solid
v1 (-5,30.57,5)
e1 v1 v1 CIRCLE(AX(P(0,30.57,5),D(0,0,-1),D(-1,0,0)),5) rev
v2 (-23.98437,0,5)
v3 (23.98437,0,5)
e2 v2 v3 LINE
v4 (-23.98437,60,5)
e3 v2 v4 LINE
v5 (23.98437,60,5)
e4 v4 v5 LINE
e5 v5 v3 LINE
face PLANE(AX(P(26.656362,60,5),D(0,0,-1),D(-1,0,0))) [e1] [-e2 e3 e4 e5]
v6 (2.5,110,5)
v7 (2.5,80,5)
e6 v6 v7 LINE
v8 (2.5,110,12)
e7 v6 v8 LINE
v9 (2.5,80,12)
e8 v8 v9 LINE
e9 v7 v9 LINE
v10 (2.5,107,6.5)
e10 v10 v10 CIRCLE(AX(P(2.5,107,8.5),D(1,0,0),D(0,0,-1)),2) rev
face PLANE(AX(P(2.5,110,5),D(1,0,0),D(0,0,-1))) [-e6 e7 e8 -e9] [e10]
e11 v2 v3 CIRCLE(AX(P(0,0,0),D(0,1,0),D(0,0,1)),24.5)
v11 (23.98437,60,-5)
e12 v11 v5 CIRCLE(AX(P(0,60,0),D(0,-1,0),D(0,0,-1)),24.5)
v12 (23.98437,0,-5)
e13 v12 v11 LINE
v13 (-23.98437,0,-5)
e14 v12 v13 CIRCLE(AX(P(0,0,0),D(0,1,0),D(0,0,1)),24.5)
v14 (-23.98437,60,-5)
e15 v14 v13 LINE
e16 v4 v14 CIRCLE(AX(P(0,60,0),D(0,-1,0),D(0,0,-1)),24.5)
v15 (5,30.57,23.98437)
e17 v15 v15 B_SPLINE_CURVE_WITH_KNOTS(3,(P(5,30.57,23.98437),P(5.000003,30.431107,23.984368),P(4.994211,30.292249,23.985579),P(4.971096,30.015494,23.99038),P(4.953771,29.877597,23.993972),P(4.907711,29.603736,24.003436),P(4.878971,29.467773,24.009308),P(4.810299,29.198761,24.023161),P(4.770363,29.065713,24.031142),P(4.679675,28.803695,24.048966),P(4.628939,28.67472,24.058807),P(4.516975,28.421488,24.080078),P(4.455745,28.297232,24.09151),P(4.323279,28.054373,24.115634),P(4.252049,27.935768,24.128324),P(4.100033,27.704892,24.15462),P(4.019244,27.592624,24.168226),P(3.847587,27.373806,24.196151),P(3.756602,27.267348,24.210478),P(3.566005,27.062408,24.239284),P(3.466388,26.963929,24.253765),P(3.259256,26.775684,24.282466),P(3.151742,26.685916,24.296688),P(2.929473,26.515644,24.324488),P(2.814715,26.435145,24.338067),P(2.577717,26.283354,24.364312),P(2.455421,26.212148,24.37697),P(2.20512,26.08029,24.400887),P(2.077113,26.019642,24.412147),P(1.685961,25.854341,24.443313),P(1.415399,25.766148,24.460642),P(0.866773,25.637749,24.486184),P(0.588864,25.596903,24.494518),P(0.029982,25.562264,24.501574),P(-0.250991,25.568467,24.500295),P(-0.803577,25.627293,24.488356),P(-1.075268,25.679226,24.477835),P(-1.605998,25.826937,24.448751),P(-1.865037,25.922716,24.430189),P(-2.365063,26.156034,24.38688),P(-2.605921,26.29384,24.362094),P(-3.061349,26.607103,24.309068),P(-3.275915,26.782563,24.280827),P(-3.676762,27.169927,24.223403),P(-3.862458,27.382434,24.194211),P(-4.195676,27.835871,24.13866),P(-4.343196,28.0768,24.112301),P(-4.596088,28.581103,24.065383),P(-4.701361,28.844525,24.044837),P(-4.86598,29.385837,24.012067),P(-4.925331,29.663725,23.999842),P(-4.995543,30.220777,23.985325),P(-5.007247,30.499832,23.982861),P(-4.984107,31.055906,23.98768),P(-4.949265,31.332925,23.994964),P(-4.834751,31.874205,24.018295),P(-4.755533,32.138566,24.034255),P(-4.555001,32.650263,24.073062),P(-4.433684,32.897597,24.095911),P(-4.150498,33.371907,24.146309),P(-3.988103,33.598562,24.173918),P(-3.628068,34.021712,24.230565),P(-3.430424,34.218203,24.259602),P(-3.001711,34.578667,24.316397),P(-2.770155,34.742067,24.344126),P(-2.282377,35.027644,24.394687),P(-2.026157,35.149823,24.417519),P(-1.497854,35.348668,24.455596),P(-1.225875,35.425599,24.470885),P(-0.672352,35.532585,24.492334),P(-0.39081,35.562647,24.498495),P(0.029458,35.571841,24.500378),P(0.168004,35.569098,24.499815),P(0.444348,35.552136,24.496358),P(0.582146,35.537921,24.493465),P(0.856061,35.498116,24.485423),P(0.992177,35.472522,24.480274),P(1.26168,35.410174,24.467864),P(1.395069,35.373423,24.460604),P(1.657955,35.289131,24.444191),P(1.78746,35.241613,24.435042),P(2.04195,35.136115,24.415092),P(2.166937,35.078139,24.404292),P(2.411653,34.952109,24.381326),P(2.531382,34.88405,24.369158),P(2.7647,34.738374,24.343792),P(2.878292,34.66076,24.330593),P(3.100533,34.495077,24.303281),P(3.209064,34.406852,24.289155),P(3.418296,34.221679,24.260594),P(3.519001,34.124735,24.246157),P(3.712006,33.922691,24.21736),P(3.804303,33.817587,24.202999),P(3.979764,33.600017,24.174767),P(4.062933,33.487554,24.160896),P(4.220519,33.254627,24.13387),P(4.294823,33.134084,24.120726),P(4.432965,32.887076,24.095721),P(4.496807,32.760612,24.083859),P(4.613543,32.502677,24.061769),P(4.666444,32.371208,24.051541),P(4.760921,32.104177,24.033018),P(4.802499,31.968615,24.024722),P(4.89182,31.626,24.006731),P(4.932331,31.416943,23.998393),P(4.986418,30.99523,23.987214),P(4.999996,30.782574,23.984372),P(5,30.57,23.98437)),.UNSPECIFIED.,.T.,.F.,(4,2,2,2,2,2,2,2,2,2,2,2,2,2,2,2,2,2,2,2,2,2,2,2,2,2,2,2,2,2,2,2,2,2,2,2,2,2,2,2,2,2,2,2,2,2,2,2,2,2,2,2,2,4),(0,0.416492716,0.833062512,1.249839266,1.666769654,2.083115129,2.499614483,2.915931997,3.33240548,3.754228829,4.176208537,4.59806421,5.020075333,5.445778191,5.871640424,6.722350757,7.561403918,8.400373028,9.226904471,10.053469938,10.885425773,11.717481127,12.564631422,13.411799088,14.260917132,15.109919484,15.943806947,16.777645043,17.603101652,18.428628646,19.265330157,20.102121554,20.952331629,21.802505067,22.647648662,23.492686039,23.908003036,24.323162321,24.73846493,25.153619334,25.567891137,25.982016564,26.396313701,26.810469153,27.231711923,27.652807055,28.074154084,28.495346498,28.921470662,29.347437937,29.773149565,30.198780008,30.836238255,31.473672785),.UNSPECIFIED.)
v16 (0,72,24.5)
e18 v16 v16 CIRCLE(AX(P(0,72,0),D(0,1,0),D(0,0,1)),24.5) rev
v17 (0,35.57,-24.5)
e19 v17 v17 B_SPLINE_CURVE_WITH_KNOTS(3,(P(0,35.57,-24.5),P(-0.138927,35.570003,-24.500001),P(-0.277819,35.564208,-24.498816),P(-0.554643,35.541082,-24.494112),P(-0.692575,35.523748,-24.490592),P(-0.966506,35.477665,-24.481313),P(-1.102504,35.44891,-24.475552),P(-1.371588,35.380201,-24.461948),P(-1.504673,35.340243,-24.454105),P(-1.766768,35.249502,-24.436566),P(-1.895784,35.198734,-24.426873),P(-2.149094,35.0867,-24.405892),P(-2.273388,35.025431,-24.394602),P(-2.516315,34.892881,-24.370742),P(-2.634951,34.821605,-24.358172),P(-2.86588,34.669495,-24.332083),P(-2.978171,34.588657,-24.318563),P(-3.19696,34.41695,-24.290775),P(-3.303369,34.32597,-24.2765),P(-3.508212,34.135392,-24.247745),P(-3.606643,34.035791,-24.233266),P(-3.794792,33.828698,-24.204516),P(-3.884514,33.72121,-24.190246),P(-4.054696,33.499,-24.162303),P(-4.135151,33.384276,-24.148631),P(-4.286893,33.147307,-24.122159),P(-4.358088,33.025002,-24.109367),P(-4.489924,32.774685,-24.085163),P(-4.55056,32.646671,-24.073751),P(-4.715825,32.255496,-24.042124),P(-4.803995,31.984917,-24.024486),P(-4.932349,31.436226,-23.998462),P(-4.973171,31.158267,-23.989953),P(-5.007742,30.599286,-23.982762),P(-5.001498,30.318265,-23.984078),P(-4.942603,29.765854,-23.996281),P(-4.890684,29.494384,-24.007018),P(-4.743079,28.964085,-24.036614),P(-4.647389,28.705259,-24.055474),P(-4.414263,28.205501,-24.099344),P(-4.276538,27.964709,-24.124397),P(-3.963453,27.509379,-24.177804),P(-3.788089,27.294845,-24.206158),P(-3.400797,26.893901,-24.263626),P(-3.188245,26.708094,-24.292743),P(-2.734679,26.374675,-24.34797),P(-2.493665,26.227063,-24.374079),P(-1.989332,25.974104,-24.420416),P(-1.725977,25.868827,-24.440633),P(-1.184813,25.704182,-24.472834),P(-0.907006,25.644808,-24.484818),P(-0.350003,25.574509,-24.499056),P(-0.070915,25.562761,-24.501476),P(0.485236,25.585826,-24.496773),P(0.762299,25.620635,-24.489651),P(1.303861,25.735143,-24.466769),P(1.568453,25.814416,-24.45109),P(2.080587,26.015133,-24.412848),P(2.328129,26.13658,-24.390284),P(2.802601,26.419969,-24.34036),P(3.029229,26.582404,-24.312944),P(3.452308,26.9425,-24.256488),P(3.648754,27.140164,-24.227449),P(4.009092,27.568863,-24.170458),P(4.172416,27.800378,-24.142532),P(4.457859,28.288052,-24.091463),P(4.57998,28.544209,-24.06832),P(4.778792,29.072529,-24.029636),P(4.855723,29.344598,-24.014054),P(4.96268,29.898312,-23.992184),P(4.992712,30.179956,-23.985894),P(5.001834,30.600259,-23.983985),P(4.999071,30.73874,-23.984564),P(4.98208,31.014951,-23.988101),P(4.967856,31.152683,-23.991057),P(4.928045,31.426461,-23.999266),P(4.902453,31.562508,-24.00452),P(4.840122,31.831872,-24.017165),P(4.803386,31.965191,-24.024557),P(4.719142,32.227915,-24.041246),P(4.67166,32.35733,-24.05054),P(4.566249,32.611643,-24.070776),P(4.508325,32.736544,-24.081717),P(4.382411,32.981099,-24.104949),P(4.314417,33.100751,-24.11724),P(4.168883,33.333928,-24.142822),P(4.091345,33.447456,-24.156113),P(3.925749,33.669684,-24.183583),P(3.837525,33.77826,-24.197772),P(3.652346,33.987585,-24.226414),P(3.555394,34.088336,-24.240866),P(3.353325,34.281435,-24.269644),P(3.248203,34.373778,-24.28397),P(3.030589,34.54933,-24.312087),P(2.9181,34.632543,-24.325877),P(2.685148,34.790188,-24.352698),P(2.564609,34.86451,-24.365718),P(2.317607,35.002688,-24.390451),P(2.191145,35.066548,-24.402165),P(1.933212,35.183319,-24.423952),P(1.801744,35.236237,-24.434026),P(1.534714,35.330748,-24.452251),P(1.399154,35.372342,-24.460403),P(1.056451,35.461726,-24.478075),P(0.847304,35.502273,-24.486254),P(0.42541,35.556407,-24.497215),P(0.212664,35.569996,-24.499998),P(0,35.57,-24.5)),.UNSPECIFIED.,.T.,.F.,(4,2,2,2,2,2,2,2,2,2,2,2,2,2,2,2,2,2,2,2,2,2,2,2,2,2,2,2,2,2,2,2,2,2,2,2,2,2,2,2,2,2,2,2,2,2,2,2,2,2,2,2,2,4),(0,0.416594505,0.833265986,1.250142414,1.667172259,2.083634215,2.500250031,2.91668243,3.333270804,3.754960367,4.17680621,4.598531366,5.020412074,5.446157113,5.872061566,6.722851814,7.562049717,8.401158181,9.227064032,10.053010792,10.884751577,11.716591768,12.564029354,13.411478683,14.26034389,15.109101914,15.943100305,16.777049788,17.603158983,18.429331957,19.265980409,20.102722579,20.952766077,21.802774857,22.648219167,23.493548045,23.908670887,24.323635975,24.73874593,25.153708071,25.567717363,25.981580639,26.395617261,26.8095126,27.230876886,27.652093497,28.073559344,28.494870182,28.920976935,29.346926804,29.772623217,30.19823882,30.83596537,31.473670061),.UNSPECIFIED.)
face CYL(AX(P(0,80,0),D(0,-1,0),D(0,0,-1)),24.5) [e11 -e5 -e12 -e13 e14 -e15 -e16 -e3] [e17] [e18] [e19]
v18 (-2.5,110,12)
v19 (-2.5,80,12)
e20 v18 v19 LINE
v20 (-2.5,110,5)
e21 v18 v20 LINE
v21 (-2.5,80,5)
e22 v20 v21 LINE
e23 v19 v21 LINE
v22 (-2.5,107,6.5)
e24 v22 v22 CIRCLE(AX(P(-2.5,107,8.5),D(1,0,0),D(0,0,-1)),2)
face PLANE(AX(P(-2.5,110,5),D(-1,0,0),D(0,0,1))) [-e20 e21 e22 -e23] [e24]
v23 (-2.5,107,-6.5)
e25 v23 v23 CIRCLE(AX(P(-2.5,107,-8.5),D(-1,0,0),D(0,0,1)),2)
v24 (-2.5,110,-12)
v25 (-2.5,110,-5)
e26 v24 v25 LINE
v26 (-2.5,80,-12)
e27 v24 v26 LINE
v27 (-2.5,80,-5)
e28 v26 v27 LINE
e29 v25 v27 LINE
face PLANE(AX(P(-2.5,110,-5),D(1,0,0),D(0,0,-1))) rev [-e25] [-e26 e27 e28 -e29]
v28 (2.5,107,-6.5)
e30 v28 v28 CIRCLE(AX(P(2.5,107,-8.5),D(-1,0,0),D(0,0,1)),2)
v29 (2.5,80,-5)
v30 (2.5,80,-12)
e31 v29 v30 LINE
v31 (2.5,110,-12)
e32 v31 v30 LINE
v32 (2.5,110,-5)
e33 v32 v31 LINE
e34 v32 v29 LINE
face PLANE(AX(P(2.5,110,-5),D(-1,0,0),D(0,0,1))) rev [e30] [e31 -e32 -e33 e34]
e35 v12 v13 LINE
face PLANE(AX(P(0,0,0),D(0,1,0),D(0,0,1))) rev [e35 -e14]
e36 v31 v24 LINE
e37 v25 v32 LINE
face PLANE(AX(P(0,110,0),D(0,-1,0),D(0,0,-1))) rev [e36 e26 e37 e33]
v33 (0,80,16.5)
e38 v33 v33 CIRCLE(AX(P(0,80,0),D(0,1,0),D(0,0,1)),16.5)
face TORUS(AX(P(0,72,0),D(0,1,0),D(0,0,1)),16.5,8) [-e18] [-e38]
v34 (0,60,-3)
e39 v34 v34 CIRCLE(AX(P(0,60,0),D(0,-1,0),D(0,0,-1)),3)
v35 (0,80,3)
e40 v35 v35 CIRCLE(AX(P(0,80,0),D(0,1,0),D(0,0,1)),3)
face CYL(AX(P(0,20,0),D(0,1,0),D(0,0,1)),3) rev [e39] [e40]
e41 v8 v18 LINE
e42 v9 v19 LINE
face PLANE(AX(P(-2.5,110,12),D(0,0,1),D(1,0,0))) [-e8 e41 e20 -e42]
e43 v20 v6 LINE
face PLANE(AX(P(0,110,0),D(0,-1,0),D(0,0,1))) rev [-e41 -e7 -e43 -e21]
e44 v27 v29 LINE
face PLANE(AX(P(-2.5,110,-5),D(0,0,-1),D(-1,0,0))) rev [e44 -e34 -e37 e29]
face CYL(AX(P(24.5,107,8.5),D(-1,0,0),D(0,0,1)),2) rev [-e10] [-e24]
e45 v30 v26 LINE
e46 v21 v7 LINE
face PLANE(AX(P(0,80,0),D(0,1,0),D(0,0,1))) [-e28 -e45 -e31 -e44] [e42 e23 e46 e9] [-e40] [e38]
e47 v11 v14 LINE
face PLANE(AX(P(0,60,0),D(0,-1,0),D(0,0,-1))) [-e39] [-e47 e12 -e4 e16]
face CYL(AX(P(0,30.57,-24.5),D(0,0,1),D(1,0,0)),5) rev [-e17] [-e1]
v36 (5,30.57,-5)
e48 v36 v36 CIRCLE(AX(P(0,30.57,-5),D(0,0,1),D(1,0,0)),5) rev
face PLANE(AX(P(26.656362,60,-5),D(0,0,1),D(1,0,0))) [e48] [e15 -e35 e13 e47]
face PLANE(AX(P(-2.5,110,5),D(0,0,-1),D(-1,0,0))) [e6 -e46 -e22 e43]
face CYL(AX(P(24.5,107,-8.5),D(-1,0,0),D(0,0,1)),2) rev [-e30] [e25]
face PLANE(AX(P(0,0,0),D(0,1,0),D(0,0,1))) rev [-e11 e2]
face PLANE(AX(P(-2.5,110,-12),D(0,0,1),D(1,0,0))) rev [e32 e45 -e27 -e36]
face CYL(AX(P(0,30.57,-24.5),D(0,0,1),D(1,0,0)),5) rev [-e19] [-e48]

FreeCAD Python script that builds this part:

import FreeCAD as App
import Part
import Sketcher


def edges_at(feature, points):
    """Names of the edges that pass closest to the given points."""
    edges = feature.Shape.Edges
    near = lambda p: min(range(len(edges)), key=lambda i: edges[i].distToShape(Part.Vertex(*p))[0])
    return sorted({f"Edge{near(p) + 1}" for p in points})

doc = App.newDocument("Part")
body = doc.addObject("PartDesign::Body", "Body")

sketch1 = body.newObject("Sketcher::SketchObject", "Sketch")
sketch1.AttachmentSupport = (doc.getObject("XZ_Plane"), [""])
sketch1.MapMode = "FlatFace"
sketch1.addGeometry(Part.Circle(App.Vector(0, 0, 0), App.Vector(0, 0, 1), 24), False)
sketch1.addConstraint(Sketcher.Constraint("Coincident", 0, 3, -1, 1))
sketch1.addConstraint(Sketcher.Constraint("Diameter", 0, 49.0))
pad1 = body.newObject("PartDesign::Pad", "Pad")
pad1.Profile = sketch1
pad1.Length = 80
pad1.Reversed = True
doc.recompute()

fillet = body.newObject("PartDesign::Fillet", "Fillet")
fillet.Base = (pad1, edges_at(pad1, [(0, 80, -24.5)]))
fillet.Radius = 8

sketch2 = body.newObject("Sketcher::SketchObject", "Sketch001")
sketch2.AttachmentSupport = (doc.getObject("XY_Plane"), [""])
sketch2.MapMode = "FlatFace"
sketch2.addGeometry(Part.Circle(App.Vector(0, 31, 0), App.Vector(0, 0, 1), 5), False)
sketch2.addConstraint(Sketcher.Constraint("PointOnObject", 0, 3, -2))
sketch2.addConstraint(Sketcher.Constraint("Diameter", 0, 10.0))
sketch2.addConstraint(Sketcher.Constraint("DistanceY", -1, 1, 0, 3, 30.57))
pocket1 = body.newObject("PartDesign::Pocket", "Pocket")
pocket1.Profile = sketch2
pocket1.Type = "ThroughAll"
pocket1.Midplane = True

sketch3 = body.newObject("Sketcher::SketchObject", "Sketch002")
sketch3.AttachmentSupport = (doc.getObject("XZ_Plane"), [""])
sketch3.MapMode = "FlatFace"
sketch3.addGeometry(Part.LineSegment(App.Vector(-29, -5, 0), App.Vector(-29, 5, 0)), False)
sketch3.addGeometry(Part.LineSegment(App.Vector(-29, 5, 0), App.Vector(27, 5, 0)), False)
sketch3.addGeometry(Part.LineSegment(App.Vector(27, 5, 0), App.Vector(27, -5, 0)), False)
sketch3.addGeometry(Part.LineSegment(App.Vector(27, -5, 0), App.Vector(-29, -5, 0)), False)
sketch3.addConstraint(Sketcher.Constraint("Coincident", 0, 2, 1, 1))
sketch3.addConstraint(Sketcher.Constraint("Coincident", 1, 2, 2, 1))
sketch3.addConstraint(Sketcher.Constraint("Coincident", 2, 2, 3, 1))
sketch3.addConstraint(Sketcher.Constraint("Coincident", 3, 2, 0, 1))
sketch3.addConstraint(Sketcher.Constraint("Vertical", 0))
sketch3.addConstraint(Sketcher.Constraint("Horizontal", 1))
sketch3.addConstraint(Sketcher.Constraint("Vertical", 2))
sketch3.addConstraint(Sketcher.Constraint("Horizontal", 3))
sketch3.addConstraint(Sketcher.Constraint("DistanceY", 0, 1, 0, 2, 10.0))
sketch3.addConstraint(Sketcher.Constraint("DistanceY", -1, 1, 0, 2, 5.0))
sketch3.addConstraint(Sketcher.Constraint("DistanceX", 1, 1, 1, 2, 56.031714))
sketch3.addConstraint(Sketcher.Constraint("DistanceX", -1, 1, 1, 2, 26.656362))
pocket2 = body.newObject("PartDesign::Pocket", "Pocket001")
pocket2.Profile = sketch3
pocket2.Length = 60

sketch4 = body.newObject("Sketcher::SketchObject", "Sketch003")
sketch4.AttachmentSupport = (doc.getObject("XZ_Plane"), [""])
sketch4.MapMode = "FlatFace"
sketch4.AttachmentOffset = App.Placement(App.Vector(0, 0, -80), App.Rotation())
sketch4.addGeometry(Part.Circle(App.Vector(0, 0, 0), App.Vector(0, 0, 1), 3), False)
sketch4.addConstraint(Sketcher.Constraint("Coincident", 0, 3, -1, 1))
sketch4.addConstraint(Sketcher.Constraint("Diameter", 0, 6.0))
pocket3 = body.newObject("PartDesign::Pocket", "Pocket002")
pocket3.Profile = sketch4
pocket3.Length = 60
pocket3.Reversed = True

sketch5 = body.newObject("Sketcher::SketchObject", "Sketch004")
sketch5.AttachmentSupport = (doc.getObject("XZ_Plane"), [""])
sketch5.MapMode = "FlatFace"
sketch5.AttachmentOffset = App.Placement(App.Vector(0, 0, -80), App.Rotation())
sketch5.addGeometry(Part.LineSegment(App.Vector(-2, -12, 0), App.Vector(-2, -5, 0)), False)
sketch5.addGeometry(Part.LineSegment(App.Vector(-2, -5, 0), App.Vector(2, -5, 0)), False)
sketch5.addGeometry(Part.LineSegment(App.Vector(2, -5, 0), App.Vector(2, -12, 0)), False)
sketch5.addGeometry(Part.LineSegment(App.Vector(2, -12, 0), App.Vector(-2, -12, 0)), False)
sketch5.addConstraint(Sketcher.Constraint("Coincident", 0, 2, 1, 1))
sketch5.addConstraint(Sketcher.Constraint("Coincident", 1, 2, 2, 1))
sketch5.addConstraint(Sketcher.Constraint("Coincident", 2, 2, 3, 1))
sketch5.addConstraint(Sketcher.Constraint("Coincident", 3, 2, 0, 1))
sketch5.addConstraint(Sketcher.Constraint("Vertical", 0))
sketch5.addConstraint(Sketcher.Constraint("Horizontal", 1))
sketch5.addConstraint(Sketcher.Constraint("Vertical", 2))
sketch5.addConstraint(Sketcher.Constraint("Horizontal", 3))
sketch5.addConstraint(Sketcher.Constraint("DistanceX", 1, 1, 1, 2, 5.0))
sketch5.addConstraint(Sketcher.Constraint("DistanceY", 0, 1, 0, 2, 7.0))
sketch5.addConstraint(Sketcher.Constraint("DistanceY", 0, 2, -1, 1, 5.0))
sketch5.addConstraint(Sketcher.Constraint("DistanceX", 0, 2, -1, 1, 2.5))
pad2 = body.newObject("PartDesign::Pad", "Pad001")
pad2.Profile = sketch5
pad2.Length = 30
pad2.Reversed = True

sketch6 = body.newObject("Sketcher::SketchObject", "Sketch005")
sketch6.AttachmentSupport = (doc.getObject("YZ_Plane"), [""])
sketch6.MapMode = "FlatFace"
sketch6.AttachmentOffset = App.Placement(App.Vector(0, 0, -2.5), App.Rotation())
sketch6.addGeometry(Part.Circle(App.Vector(107, -8.5, 0), App.Vector(0, 0, 1), 2), False)
sketch6.addConstraint(Sketcher.Constraint("Diameter", 0, 4.0))
sketch6.addConstraint(Sketcher.Constraint("DistanceX", -1, 1, 0, 3, 107.0))
sketch6.addConstraint(Sketcher.Constraint("DistanceY", 0, 3, -1, 1, 8.5))
pocket4 = body.newObject("PartDesign::Pocket", "Pocket003")
pocket4.Profile = sketch6
pocket4.Type = "ThroughAll"
pocket4.Reversed = True
doc.recompute()

mirrored = body.newObject("PartDesign::Mirrored", "Mirrored")
mirrored.Originals = [pad2, pocket4]
mirrored.MirrorPlane = (doc.getObject("XY_Plane"), [""])
body.Tip = mirrored

doc.recompute()
